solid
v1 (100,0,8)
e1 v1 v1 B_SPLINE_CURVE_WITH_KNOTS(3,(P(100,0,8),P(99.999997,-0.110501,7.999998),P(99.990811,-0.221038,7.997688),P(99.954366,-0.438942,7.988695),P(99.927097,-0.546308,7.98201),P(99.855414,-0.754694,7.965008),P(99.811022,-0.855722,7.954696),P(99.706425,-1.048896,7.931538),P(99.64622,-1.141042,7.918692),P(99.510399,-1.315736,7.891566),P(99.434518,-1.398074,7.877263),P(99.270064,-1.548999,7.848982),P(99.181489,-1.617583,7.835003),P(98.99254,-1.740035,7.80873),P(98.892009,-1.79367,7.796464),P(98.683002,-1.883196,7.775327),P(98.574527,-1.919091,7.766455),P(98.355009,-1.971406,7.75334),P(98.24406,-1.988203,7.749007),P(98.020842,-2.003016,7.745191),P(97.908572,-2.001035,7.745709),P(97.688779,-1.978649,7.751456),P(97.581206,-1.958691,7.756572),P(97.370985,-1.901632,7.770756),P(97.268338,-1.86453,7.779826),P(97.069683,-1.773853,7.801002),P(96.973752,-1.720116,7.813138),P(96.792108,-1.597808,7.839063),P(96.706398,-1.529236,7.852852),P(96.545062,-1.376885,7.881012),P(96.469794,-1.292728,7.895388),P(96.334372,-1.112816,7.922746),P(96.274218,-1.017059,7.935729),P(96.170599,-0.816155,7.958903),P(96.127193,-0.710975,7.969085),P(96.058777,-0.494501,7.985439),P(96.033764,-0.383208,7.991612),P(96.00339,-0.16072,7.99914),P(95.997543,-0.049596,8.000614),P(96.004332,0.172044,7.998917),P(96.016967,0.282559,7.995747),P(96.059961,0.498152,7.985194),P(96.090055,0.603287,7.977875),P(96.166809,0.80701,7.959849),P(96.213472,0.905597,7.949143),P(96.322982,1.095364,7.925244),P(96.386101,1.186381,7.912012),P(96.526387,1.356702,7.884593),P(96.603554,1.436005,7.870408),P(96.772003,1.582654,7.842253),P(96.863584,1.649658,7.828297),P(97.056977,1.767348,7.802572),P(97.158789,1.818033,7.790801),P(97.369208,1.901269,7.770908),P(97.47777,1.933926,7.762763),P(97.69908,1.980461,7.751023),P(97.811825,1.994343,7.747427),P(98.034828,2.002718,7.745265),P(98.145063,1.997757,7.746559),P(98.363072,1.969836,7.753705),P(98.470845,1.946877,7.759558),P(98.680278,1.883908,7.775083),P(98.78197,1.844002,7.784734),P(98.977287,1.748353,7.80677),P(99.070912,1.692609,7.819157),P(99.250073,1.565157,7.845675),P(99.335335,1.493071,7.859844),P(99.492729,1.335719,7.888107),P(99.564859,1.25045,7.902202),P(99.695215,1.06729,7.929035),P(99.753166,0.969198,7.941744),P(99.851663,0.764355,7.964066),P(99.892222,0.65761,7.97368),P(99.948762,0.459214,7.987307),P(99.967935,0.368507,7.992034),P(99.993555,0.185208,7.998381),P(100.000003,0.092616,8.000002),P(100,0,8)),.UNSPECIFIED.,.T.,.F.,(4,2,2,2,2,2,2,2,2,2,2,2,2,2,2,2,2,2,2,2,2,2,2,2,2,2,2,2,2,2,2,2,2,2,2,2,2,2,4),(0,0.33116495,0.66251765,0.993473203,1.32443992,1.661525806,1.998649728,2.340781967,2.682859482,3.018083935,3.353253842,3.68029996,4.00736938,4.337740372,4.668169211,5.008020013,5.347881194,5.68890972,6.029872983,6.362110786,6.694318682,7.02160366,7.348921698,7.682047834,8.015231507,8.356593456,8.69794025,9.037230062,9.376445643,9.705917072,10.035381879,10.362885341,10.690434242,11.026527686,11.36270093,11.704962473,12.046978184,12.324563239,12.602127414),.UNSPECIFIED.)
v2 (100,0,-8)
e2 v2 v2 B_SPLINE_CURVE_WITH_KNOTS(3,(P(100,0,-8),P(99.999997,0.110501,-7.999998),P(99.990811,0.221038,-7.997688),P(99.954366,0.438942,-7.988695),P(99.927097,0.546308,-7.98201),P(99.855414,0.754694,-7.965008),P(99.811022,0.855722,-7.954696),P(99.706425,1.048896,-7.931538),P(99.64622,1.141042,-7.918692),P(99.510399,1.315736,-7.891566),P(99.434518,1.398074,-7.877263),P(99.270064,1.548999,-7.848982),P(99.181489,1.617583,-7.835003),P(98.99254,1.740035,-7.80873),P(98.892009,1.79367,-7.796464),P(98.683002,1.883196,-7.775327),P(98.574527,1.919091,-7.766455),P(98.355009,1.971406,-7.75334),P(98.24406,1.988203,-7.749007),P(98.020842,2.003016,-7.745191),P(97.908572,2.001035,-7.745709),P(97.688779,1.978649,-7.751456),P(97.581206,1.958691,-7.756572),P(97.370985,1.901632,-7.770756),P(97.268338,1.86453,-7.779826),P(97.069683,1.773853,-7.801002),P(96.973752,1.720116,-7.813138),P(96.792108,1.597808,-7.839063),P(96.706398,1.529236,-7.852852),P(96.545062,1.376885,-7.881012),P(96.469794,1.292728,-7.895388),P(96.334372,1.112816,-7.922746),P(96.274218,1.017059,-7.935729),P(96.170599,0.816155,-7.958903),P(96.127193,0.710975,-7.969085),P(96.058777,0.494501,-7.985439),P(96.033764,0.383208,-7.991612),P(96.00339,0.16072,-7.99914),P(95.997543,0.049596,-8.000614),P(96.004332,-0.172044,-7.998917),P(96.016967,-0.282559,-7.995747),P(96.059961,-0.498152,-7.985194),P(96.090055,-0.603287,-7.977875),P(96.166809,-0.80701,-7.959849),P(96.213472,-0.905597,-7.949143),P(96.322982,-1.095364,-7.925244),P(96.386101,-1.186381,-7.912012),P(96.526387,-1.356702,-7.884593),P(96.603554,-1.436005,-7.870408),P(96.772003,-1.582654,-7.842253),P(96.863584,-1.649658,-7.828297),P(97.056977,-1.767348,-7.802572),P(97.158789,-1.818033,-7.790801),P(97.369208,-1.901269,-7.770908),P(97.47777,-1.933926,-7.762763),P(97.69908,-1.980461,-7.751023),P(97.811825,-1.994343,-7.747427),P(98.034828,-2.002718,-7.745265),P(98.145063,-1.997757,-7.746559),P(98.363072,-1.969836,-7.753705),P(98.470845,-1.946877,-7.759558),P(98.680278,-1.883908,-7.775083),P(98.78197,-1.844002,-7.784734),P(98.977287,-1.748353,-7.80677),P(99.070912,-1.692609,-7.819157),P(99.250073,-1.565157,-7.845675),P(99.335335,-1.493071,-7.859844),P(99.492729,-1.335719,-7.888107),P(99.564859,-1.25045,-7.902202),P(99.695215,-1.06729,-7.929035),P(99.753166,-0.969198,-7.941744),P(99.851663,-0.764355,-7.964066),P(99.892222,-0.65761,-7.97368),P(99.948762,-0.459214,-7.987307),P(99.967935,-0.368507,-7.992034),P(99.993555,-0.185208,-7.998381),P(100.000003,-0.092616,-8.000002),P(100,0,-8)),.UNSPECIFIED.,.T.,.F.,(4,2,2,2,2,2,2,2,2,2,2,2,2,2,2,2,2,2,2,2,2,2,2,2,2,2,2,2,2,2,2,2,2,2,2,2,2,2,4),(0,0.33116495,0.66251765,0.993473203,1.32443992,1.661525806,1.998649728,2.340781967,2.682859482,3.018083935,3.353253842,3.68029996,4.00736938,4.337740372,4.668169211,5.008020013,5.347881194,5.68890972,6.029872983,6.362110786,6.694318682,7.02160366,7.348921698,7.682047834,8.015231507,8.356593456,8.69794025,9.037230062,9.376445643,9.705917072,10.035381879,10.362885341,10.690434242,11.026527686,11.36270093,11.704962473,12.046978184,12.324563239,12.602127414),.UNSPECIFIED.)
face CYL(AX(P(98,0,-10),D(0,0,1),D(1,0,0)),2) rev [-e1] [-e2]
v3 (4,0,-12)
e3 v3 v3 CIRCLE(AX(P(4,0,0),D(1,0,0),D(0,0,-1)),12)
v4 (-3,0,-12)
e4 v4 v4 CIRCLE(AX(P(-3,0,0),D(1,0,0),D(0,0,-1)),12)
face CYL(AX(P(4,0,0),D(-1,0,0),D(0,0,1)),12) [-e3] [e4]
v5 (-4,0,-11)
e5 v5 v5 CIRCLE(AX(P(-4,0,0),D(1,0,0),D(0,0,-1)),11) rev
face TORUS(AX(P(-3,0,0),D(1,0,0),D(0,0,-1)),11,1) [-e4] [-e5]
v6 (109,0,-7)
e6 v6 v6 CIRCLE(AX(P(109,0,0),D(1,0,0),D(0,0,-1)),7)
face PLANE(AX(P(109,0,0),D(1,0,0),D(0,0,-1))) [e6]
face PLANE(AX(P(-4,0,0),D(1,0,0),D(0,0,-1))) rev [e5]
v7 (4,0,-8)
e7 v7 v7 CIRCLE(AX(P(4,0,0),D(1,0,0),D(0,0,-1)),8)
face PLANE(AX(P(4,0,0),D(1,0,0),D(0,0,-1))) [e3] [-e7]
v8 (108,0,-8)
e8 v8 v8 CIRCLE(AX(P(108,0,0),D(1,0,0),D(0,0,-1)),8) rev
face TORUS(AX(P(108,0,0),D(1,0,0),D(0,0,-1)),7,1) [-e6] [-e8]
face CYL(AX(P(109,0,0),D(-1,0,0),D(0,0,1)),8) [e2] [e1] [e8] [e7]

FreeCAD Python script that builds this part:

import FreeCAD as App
import Part
import Sketcher
Q = App.Units.Quantity


def edges_at(feature, points):
    """Names of the edges that pass closest to the given points."""
    edges = feature.Shape.Edges
    near = lambda p: min(range(len(edges)), key=lambda i: edges[i].distToShape(Part.Vertex(*p))[0])
    return sorted({f"Edge{near(p) + 1}" for p in points})

doc = App.newDocument("Part")
body = doc.addObject("PartDesign::Body", "Body")

sketch1 = body.newObject("Sketcher::SketchObject", "Sketch")
sketch1.AttachmentSupport = (doc.getObject("YZ_Plane"), [""])
sketch1.MapMode = "FlatFace"
sketch1.addGeometry(Part.Circle(App.Vector(0, 0, 0), App.Vector(0, 0, 1), 12), False)
sketch1.addConstraint([
    Sketcher.Constraint("Coincident", 0, 3, -1, 1),
    Sketcher.Constraint("Diameter", 0, Q("24 mm")),
])
pad1 = body.newObject("PartDesign::Pad", "Pad")
pad1.Profile = sketch1
pad1.Length = 8
pad1.Midplane = True

sketch2 = body.newObject("Sketcher::SketchObject", "Sketch001")
sketch2.AttachmentSupport = (doc.getObject("YZ_Plane"), [""])
sketch2.MapMode = "FlatFace"
sketch2.AttachmentOffset = App.Placement(App.Vector(0, 0, 4), App.Rotation())
sketch2.addGeometry(Part.Circle(App.Vector(0, 0, 0), App.Vector(0, 0, 1), 8), False)
sketch2.addConstraint([
    Sketcher.Constraint("Coincident", 0, 3, -1, 1),
    Sketcher.Constraint("Diameter", 0, Q("16 mm")),
])
pad2 = body.newObject("PartDesign::Pad", "Pad001")
pad2.Profile = sketch2
pad2.Length = 105
doc.recompute()

fillet = body.newObject("PartDesign::Fillet", "Fillet")
fillet.Base = (pad2, edges_at(pad2, [(-4, 0, 12)]))
fillet.Radius = 1
doc.recompute()

fillet2 = body.newObject("PartDesign::Fillet", "Fillet001")
fillet2.Base = (fillet, edges_at(fillet, [(109, 0, 8)]))
fillet2.Radius = 1

sketch3 = body.newObject("Sketcher::SketchObject", "Sketch002")
sketch3.AttachmentSupport = (doc.getObject("XY_Plane"), [""])
sketch3.MapMode = "FlatFace"
sketch3.addGeometry(Part.Circle(App.Vector(98, 0, 0), App.Vector(0, 0, 1), 2), False)
sketch3.addConstraint([
    Sketcher.Constraint("PointOnObject", 0, 3, -1),
    Sketcher.Constraint("Diameter", 0, Q("4 mm")),
    Sketcher.Constraint("DistanceX", -1, 1, 0, 3, Q("98 mm")),
])
pocket1 = body.newObject("PartDesign::Pocket", "Pocket")
pocket1.Profile = sketch3
pocket1.Length = 20
pocket1.Midplane = True

doc.recompute()
